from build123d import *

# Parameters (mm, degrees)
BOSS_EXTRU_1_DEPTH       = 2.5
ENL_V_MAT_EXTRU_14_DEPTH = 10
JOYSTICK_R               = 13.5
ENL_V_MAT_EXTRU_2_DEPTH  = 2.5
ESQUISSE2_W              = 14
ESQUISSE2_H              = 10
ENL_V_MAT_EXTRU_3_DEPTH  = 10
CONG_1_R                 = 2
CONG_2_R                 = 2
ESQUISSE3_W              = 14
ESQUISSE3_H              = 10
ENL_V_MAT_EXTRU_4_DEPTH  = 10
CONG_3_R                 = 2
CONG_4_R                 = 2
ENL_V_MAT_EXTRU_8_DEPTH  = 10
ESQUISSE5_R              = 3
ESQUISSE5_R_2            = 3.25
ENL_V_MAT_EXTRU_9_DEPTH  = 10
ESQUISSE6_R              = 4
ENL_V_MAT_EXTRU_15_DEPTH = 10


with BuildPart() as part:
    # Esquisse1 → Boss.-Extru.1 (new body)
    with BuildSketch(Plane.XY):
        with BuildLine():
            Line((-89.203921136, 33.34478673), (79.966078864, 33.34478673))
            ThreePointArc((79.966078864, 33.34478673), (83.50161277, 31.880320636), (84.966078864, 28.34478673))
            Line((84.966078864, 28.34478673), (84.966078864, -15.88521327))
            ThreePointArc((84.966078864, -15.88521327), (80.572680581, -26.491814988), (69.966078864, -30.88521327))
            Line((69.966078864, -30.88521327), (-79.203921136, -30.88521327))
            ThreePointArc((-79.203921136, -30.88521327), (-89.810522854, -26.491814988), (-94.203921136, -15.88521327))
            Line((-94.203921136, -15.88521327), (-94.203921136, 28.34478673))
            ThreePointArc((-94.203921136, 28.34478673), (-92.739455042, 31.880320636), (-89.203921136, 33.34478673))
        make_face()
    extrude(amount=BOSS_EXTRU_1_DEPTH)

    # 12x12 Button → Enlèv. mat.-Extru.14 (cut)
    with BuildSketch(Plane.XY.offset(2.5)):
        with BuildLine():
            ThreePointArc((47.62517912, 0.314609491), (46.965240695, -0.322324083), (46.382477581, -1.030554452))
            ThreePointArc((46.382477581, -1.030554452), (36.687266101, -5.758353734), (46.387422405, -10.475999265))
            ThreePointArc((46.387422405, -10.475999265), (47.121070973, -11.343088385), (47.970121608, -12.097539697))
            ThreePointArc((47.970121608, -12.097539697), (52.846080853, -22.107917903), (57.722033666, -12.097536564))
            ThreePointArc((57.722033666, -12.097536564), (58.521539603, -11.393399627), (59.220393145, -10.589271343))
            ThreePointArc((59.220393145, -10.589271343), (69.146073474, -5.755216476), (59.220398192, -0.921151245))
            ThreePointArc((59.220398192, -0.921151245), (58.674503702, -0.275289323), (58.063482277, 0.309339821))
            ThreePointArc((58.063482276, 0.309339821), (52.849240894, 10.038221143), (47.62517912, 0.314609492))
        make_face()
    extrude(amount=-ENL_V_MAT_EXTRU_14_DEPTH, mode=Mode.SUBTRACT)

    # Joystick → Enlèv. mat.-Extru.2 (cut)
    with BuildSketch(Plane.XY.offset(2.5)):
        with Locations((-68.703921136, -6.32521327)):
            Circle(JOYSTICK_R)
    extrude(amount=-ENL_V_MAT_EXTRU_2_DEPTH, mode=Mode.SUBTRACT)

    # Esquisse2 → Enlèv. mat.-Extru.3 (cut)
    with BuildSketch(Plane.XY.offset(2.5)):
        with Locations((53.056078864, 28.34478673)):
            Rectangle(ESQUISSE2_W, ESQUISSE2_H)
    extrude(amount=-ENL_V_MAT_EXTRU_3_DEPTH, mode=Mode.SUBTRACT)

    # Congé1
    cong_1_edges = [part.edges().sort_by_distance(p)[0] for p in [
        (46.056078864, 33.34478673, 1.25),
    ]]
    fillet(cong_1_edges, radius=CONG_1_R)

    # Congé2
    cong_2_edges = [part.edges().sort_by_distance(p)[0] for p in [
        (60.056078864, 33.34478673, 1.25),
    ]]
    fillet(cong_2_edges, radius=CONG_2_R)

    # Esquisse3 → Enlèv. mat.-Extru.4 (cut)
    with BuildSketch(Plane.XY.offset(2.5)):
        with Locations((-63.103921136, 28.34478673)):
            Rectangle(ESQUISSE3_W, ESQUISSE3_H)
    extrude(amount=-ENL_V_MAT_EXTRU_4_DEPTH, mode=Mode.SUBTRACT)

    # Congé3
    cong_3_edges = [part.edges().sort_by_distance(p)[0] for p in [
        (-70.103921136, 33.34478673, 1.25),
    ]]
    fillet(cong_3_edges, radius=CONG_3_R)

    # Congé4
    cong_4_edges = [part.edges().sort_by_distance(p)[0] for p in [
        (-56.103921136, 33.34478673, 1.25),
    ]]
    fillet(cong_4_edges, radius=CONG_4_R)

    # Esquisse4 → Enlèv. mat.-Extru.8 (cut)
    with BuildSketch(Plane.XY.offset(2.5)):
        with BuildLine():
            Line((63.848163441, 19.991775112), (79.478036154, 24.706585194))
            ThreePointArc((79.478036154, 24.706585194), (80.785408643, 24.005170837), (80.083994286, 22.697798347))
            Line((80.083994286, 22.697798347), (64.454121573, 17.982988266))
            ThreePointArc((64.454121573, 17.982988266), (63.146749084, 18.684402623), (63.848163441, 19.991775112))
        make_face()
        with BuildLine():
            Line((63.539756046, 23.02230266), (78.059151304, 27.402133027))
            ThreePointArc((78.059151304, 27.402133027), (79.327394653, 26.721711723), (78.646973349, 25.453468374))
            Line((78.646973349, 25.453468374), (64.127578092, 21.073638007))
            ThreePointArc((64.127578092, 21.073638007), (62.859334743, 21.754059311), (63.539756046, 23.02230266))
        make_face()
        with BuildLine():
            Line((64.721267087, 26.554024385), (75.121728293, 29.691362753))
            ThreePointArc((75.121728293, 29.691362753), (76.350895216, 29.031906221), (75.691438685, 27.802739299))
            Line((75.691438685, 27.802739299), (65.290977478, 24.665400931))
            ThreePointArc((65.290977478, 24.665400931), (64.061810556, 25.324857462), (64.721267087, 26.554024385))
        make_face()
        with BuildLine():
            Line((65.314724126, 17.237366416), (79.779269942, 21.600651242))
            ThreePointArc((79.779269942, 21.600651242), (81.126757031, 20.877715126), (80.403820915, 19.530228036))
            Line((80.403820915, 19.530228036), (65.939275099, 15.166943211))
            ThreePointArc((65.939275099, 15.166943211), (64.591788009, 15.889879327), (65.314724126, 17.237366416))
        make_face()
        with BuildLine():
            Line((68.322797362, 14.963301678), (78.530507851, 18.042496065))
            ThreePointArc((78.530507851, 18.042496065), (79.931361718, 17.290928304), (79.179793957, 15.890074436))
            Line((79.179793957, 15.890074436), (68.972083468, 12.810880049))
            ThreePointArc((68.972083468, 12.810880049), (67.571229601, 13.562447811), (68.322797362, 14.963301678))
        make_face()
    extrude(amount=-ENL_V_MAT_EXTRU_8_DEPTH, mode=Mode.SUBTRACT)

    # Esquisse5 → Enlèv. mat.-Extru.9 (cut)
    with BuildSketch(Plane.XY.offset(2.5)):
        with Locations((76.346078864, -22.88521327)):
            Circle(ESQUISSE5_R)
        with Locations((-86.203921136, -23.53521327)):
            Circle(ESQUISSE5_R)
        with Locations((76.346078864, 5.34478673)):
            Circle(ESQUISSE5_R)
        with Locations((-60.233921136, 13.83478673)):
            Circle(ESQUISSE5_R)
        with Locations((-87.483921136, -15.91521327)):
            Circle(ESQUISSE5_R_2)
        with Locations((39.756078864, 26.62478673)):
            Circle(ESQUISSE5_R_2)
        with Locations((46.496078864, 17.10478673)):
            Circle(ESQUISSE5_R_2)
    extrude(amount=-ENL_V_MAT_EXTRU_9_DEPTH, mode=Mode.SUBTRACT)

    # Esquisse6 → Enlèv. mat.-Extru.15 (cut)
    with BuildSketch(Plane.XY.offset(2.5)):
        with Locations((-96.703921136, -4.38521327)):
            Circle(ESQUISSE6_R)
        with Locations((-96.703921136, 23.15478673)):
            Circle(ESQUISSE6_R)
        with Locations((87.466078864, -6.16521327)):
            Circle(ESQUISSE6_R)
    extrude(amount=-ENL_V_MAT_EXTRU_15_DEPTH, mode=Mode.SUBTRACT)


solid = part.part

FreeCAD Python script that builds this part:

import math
import FreeCAD as App
import Part
import Sketcher


def edges_at(feature, points):
    """Names of the edges that pass closest to the given points."""
    edges = feature.Shape.Edges
    near = lambda p: min(range(len(edges)), key=lambda i: edges[i].distToShape(Part.Vertex(*p))[0])
    return sorted({f"Edge{near(p) + 1}" for p in points})


def add_polygon(sketch, points):
    """Adds a closed chain of lines whose ends are joined by coincident constraints."""
    first, n = sketch.GeometryCount, len(points)
    for a, b in zip(points, points[1:] + points[:1]):
        sketch.addGeometry(Part.LineSegment(App.Vector(*a, 0), App.Vector(*b, 0)), False)
    for i in range(n):
        sketch.addConstraint(Sketcher.Constraint("Coincident", first + i, 2, first + (i + 1) % n, 1))

doc = App.newDocument("Part")
body = doc.addObject("PartDesign::Body", "Body")

sketch1 = body.newObject("Sketcher::SketchObject", "Sketch")
sketch1.AttachmentSupport = (doc.getObject("XY_Plane"), [""])
sketch1.MapMode = "FlatFace"
sketch1.addGeometry([
    Part.LineSegment(App.Vector(80, 33, 0), App.Vector(-89, 33, 0)),
    Part.ArcOfCircle(Part.Circle(App.Vector(-89, 28, 0), App.Vector(0, 0, 1), 5), math.radians(90), math.radians(180)),
    Part.LineSegment(App.Vector(-94, 28, 0), App.Vector(-94, -16, 0)),
    Part.ArcOfCircle(Part.Circle(App.Vector(-79, -16, 0), App.Vector(0, 0, 1), 15), math.radians(180), math.radians(270)),
    Part.LineSegment(App.Vector(-79, -31, 0), App.Vector(70, -31, 0)),
    Part.ArcOfCircle(Part.Circle(App.Vector(70, -16, 0), App.Vector(0, 0, 1), 15), math.radians(-90), math.radians(0)),
    Part.LineSegment(App.Vector(85, -16, 0), App.Vector(85, 28, 0)),
    Part.ArcOfCircle(Part.Circle(App.Vector(80, 28, 0), App.Vector(0, 0, 1), 5), math.radians(0), math.radians(90)),
], False)
sketch1.addConstraint([
    Sketcher.Constraint("Tangent", 0, 2, 1, 1),
    Sketcher.Constraint("Tangent", 1, 2, 2, 1),
    Sketcher.Constraint("Tangent", 2, 2, 3, 1),
    Sketcher.Constraint("Tangent", 3, 2, 4, 1),
    Sketcher.Constraint("Tangent", 4, 2, 5, 1),
    Sketcher.Constraint("Tangent", 5, 2, 6, 1),
    Sketcher.Constraint("Tangent", 6, 2, 7, 1),
    Sketcher.Constraint("Tangent", 7, 2, 0, 1),
    Sketcher.Constraint("Horizontal", 0),
    Sketcher.Constraint("Vertical", 2),
    Sketcher.Constraint("Horizontal", 4),
    Sketcher.Constraint("Vertical", 6),
    Sketcher.Constraint("Equal", 3, 5),
    Sketcher.Constraint("Equal", 1, 7),
    Sketcher.Constraint("Radius", 1, 5.0),
    Sketcher.Constraint("Radius", 3, 15.0),
    Sketcher.Constraint("DistanceX", 0, 2, 0, 1, 169.17),
    Sketcher.Constraint("DistanceY", 2, 2, 2, 1, 44.23),
    Sketcher.Constraint("DistanceX", 1, 3, -1, 1, 89.203921),
    Sketcher.Constraint("DistanceY", -1, 1, 1, 3, 28.344787),
])
pad1 = body.newObject("PartDesign::Pad", "Pad")
pad1.Profile = sketch1
pad1.Length = 2.5

sketch2 = body.newObject("Sketcher::SketchObject", "Sketch001")
sketch2.AttachmentSupport = (doc.getObject("XY_Plane"), [""])
sketch2.MapMode = "FlatFace"
sketch2.AttachmentOffset = App.Placement(App.Vector(0, 0, 2.5), App.Rotation())
sketch2.addGeometry([
    Part.ArcOfCircle(Part.Circle(App.Vector(52.8, -5.8, 0), App.Vector(0, 0, 1), 8), math.radians(130.7), math.radians(143.83)),
    Part.ArcOfCircle(Part.Circle(App.Vector(42.7, -5.8, 0), App.Vector(0, 0, 1), 6), math.radians(52), math.radians(308)),
    Part.ArcOfCircle(Part.Circle(App.Vector(52.8, -5.8, 0), App.Vector(0, 0, 1), 8), math.radians(-143.84), math.radians(-127.55)),
    Part.ArcOfCircle(Part.Circle(App.Vector(52.8, -15.9, 0), App.Vector(0, 0, 1), 6.2), math.radians(142), math.radians(398)),
    Part.ArcOfCircle(Part.Circle(App.Vector(52.8, -5.8, 0), App.Vector(0, 0, 1), 8), math.radians(-52.45), math.radians(-37.18)),
    Part.ArcOfCircle(Part.Circle(App.Vector(63, -5.8, 0), App.Vector(0, 0, 1), 6.1), math.radians(-128), math.radians(128)),
    Part.ArcOfCircle(Part.Circle(App.Vector(52.8, -5.8, 0), App.Vector(0, 0, 1), 8), math.radians(37.18), math.radians(49.29)),
    Part.ArcOfCircle(Part.Circle(App.Vector(52.8, 3.8, 0), App.Vector(0, 0, 1), 6.3), math.radians(-34), math.radians(214)),
], False)
sketch2.addConstraint([
    Sketcher.Constraint("Coincident", 0, 2, 1, 1),
    Sketcher.Constraint("Coincident", 1, 2, 2, 1),
    Sketcher.Constraint("Coincident", 2, 2, 3, 1),
    Sketcher.Constraint("Coincident", 3, 2, 4, 1),
    Sketcher.Constraint("Coincident", 4, 2, 5, 1),
    Sketcher.Constraint("Coincident", 5, 2, 6, 1),
    Sketcher.Constraint("Coincident", 6, 2, 7, 1),
    Sketcher.Constraint("Coincident", 7, 2, 0, 1),
    Sketcher.Constraint("Coincident", 2, 3, 0, 3),
    Sketcher.Constraint("Coincident", 4, 3, 0, 3),
    Sketcher.Constraint("Coincident", 6, 3, 0, 3),
    Sketcher.Constraint("Horizontal", 0, 3, 1, 3),
    Sketcher.Constraint("Horizontal", 4, 3, 5, 3),
    Sketcher.Constraint("Vertical", 2, 3, 3, 3),
    Sketcher.Constraint("Vertical", 6, 3, 7, 3),
    Sketcher.Constraint("Radius", 4, 8.0),
    Sketcher.Constraint("Radius", 0, 8.006281),
    Sketcher.Constraint("DistanceX", 1, 3, 0, 3, 10.16),
    Sketcher.Constraint("DistanceY", 3, 3, 0, 3, 10.16),
    Sketcher.Constraint("DistanceX", 2, 3, 5, 3, 10.16),
    Sketcher.Constraint("DistanceY", 2, 3, 7, 3, 9.53),
    Sketcher.Constraint("DistanceY", 1, 2, -1, 1, 10.475999),
    Sketcher.Constraint("Radius", 1, 5.998814),
    Sketcher.Constraint("Radius", 2, 8.000004),
    Sketcher.Constraint("Radius", 3, 6.192705),
    Sketcher.Constraint("Radius", 5, 6.139995),
    Sketcher.Constraint("Radius", 6, 8.000006),
    Sketcher.Constraint("Radius", 7, 6.263435),
    Sketcher.Constraint("DistanceX", -1, 1, 5, 2, 59.220398),
])
pocket1 = body.newObject("PartDesign::Pocket", "Pocket")
pocket1.Profile = sketch2
pocket1.Length = 10

sketch3 = body.newObject("Sketcher::SketchObject", "Sketch002")
sketch3.AttachmentSupport = (doc.getObject("XY_Plane"), [""])
sketch3.MapMode = "FlatFace"
sketch3.AttachmentOffset = App.Placement(App.Vector(0, 0, 2.5), App.Rotation())
sketch3.addGeometry(Part.Circle(App.Vector(-69, -6, 0), App.Vector(0, 0, 1), 14), False)
sketch3.addConstraint([
    Sketcher.Constraint("Diameter", 0, 27.0),
    Sketcher.Constraint("DistanceX", 0, 3, -1, 1, 68.703921),
    Sketcher.Constraint("DistanceY", 0, 3, -1, 1, 6.325213),
])
pocket2 = body.newObject("PartDesign::Pocket", "Pocket001")
pocket2.Profile = sketch3
pocket2.Length = 2.5

sketch4 = body.newObject("Sketcher::SketchObject", "Sketch003")
sketch4.AttachmentSupport = (doc.getObject("XY_Plane"), [""])
sketch4.MapMode = "FlatFace"
sketch4.AttachmentOffset = App.Placement(App.Vector(0, 0, 2.5), App.Rotation())
add_polygon(sketch4, [(46, 33), (46, 23), (60, 23), (60, 33)])
sketch4.addConstraint([
    Sketcher.Constraint("Vertical", 0),
    Sketcher.Constraint("Horizontal", 1),
    Sketcher.Constraint("Vertical", 2),
    Sketcher.Constraint("Horizontal", 3),
    Sketcher.Constraint("DistanceX", 1, 1, 1, 2, 14.0),
    Sketcher.Constraint("DistanceY", 0, 2, 0, 1, 10.0),
    Sketcher.Constraint("DistanceX", -1, 1, 0, 2, 46.056079),
    Sketcher.Constraint("DistanceY", -1, 1, 0, 2, 23.344787),
])
pocket3 = body.newObject("PartDesign::Pocket", "Pocket002")
pocket3.Profile = sketch4
pocket3.Length = 10
doc.recompute()

fillet = body.newObject("PartDesign::Fillet", "Fillet")
fillet.Base = (pocket3, edges_at(pocket3, [(46.056, 33.345, 1.25)]))
fillet.Radius = 2
doc.recompute()

fillet2 = body.newObject("PartDesign::Fillet", "Fillet001")
fillet2.Base = (fillet, edges_at(fillet, [(60.056, 33.345, 1.25)]))
fillet2.Radius = 2

sketch5 = body.newObject("Sketcher::SketchObject", "Sketch004")
sketch5.AttachmentSupport = (doc.getObject("XY_Plane"), [""])
sketch5.MapMode = "FlatFace"
sketch5.AttachmentOffset = App.Placement(App.Vector(0, 0, 2.5), App.Rotation())
add_polygon(sketch5, [(-70, 33), (-70, 23), (-56, 23), (-56, 33)])
sketch5.addConstraint([
    Sketcher.Constraint("Vertical", 0),
    Sketcher.Constraint("Horizontal", 1),
    Sketcher.Constraint("Vertical", 2),
    Sketcher.Constraint("Horizontal", 3),
    Sketcher.Constraint("DistanceX", 1, 1, 1, 2, 14.0),
    Sketcher.Constraint("DistanceY", 0, 2, 0, 1, 10.0),
    Sketcher.Constraint("DistanceX", 0, 2, -1, 1, 70.103921),
    Sketcher.Constraint("DistanceY", -1, 1, 0, 2, 23.344787),
])
pocket4 = body.newObject("PartDesign::Pocket", "Pocket003")
pocket4.Profile = sketch5
pocket4.Length = 10
doc.recompute()

fillet3 = body.newObject("PartDesign::Fillet", "Fillet002")
fillet3.Base = (pocket4, edges_at(pocket4, [(-70.104, 33.345, 1.25)]))
fillet3.Radius = 2
doc.recompute()

fillet4 = body.newObject("PartDesign::Fillet", "Fillet003")
fillet4.Base = (fillet3, edges_at(fillet3, [(-56.104, 33.345, 1.25)]))
fillet4.Radius = 2

sketch6 = body.newObject("Sketcher::SketchObject", "Sketch005")
sketch6.AttachmentSupport = (doc.getObject("XY_Plane"), [""])
sketch6.MapMode = "FlatFace"
sketch6.AttachmentOffset = App.Placement(App.Vector(0, 0, 2.5), App.Rotation())
sketch6.addGeometry([
    Part.LineSegment(App.Vector(79.5, 24.7, 0), App.Vector(63.8, 20, 0)),
    Part.ArcOfCircle(Part.Circle(App.Vector(64.2, 19, 0), App.Vector(0, 0, 1), 1), math.radians(107), math.radians(287)),
    Part.LineSegment(App.Vector(64.5, 18, 0), App.Vector(80.1, 22.7, 0)),
    Part.ArcOfCircle(Part.Circle(App.Vector(79.8, 23.7, 0), App.Vector(0, 0, 1), 1), math.radians(-73), math.radians(107)),
    Part.LineSegment(App.Vector(78.1, 27.4, 0), App.Vector(63.5, 23, 0)),
    Part.ArcOfCircle(Part.Circle(App.Vector(63.8, 22, 0), App.Vector(0, 0, 1), 1), math.radians(107), math.radians(287)),
    Part.LineSegment(App.Vector(64.1, 21.1, 0), App.Vector(78.6, 25.5, 0)),
    Part.ArcOfCircle(Part.Circle(App.Vector(78.4, 26.4, 0), App.Vector(0, 0, 1), 1), math.radians(-73), math.radians(107)),
    Part.LineSegment(App.Vector(75.1, 29.7, 0), App.Vector(64.7, 26.6, 0)),
    Part.ArcOfCircle(Part.Circle(App.Vector(65, 25.6, 0), App.Vector(0, 0, 1), 1), math.radians(107), math.radians(287)),
    Part.LineSegment(App.Vector(65.3, 24.7, 0), App.Vector(75.7, 27.8, 0)),
    Part.ArcOfCircle(Part.Circle(App.Vector(75.4, 28.7, 0), App.Vector(0, 0, 1), 1), math.radians(-73), math.radians(107)),
    Part.LineSegment(App.Vector(79.8, 21.6, 0), App.Vector(65.3, 17.2, 0)),
    Part.ArcOfCircle(Part.Circle(App.Vector(65.6, 16.2, 0), App.Vector(0, 0, 1), 1.1), math.radians(107), math.radians(287)),
    Part.LineSegment(App.Vector(65.9, 15.2, 0), App.Vector(80.4, 19.5, 0)),
    Part.ArcOfCircle(Part.Circle(App.Vector(80.1, 20.6, 0), App.Vector(0, 0, 1), 1.1), math.radians(-73), math.radians(107)),
    Part.LineSegment(App.Vector(78.5, 18, 0), App.Vector(68.3, 15, 0)),
    Part.ArcOfCircle(Part.Circle(App.Vector(68.6, 13.9, 0), App.Vector(0, 0, 1), 1.1), math.radians(107), math.radians(287)),
    Part.LineSegment(App.Vector(69, 12.8, 0), App.Vector(79.2, 15.9, 0)),
    Part.ArcOfCircle(Part.Circle(App.Vector(78.9, 17, 0), App.Vector(0, 0, 1), 1.1), math.radians(-73), math.radians(107)),
], False)
sketch6.addConstraint([
    Sketcher.Constraint("Tangent", 0, 2, 1, 1),
    Sketcher.Constraint("Tangent", 1, 2, 2, 1),
    Sketcher.Constraint("Tangent", 2, 2, 3, 1),
    Sketcher.Constraint("Tangent", 3, 2, 0, 1),
    Sketcher.Constraint("Tangent", 4, 2, 5, 1),
    Sketcher.Constraint("Tangent", 5, 2, 6, 1),
    Sketcher.Constraint("Tangent", 6, 2, 7, 1),
    Sketcher.Constraint("Tangent", 7, 2, 4, 1),
    Sketcher.Constraint("Tangent", 8, 2, 9, 1),
    Sketcher.Constraint("Tangent", 9, 2, 10, 1),
    Sketcher.Constraint("Tangent", 10, 2, 11, 1),
    Sketcher.Constraint("Tangent", 11, 2, 8, 1),
    Sketcher.Constraint("Tangent", 12, 2, 13, 1),
    Sketcher.Constraint("Tangent", 13, 2, 14, 1),
    Sketcher.Constraint("Tangent", 14, 2, 15, 1),
    Sketcher.Constraint("Tangent", 15, 2, 12, 1),
    Sketcher.Constraint("Tangent", 16, 2, 17, 1),
    Sketcher.Constraint("Tangent", 17, 2, 18, 1),
    Sketcher.Constraint("Tangent", 18, 2, 19, 1),
    Sketcher.Constraint("Tangent", 19, 2, 16, 1),
    Sketcher.Constraint("Equal", 1, 3),
    Sketcher.Constraint("Equal", 5, 7),
    Sketcher.Constraint("Equal", 9, 11),
    Sketcher.Constraint("Equal", 13, 15),
    Sketcher.Constraint("Equal", 17, 19),
    Sketcher.Constraint("Parallel", 2, 4),
    Sketcher.Constraint("Parallel", 6, 8),
    Sketcher.Constraint("Parallel", 10, 12),
    Sketcher.Constraint("Parallel", 14, 16),
    Sketcher.Constraint("Radius", 9, 0.98634),
    Sketcher.Constraint("Radius", 17, 1.12411),
    Sketcher.Constraint("DistanceX", -1, 1, 13, 3, 65.627),
    Sketcher.Constraint("Radius", 1, 1.049096),
    Sketcher.Constraint("Radius", 5, 1.017697),
    Sketcher.Constraint("Radius", 13, 1.081286),
    Sketcher.Constraint("DistanceY", -1, 1, 7, 3, 26.427801),
    Sketcher.Constraint("DistanceY", -1, 1, 2, 2, 22.697798),
    Sketcher.Constraint("DistanceY", -1, 1, 9, 2, 24.665401),
    Sketcher.Constraint("DistanceY", -1, 1, 16, 2, 14.963302),
    Sketcher.Constraint("DistanceX", 5, 3, 8, 2, 0.8876),
    Sketcher.Constraint("DistanceY", 4, 2, 9, 2, 1.643098),
    Sketcher.Constraint("DistanceX", 5, 2, 9, 2, 1.163399),
    Sketcher.Constraint("DistanceX", 18, 2, 2, 2, 0.9042),
    Sketcher.Constraint("Distance", 12, 15.10832),
    Sketcher.Constraint("DistanceY", -1, 1, 1, 3, 18.987382),
    Sketcher.Constraint("DistanceY", -1, 1, 11, 3, 28.747051),
    Sketcher.Constraint("DistanceY", -1, 1, 15, 3, 20.56544),
    Sketcher.Constraint("DistanceX", -1, 1, 17, 3, 68.64744),
    Sketcher.Constraint("DistanceX", -1, 1, 19, 3, 78.855151),
    Sketcher.Constraint("DistanceX", -1, 1, 5, 2, 64.127578),
])
pocket5 = body.newObject("PartDesign::Pocket", "Pocket004")
pocket5.Profile = sketch6
pocket5.Length = 10

sketch7 = body.newObject("Sketcher::SketchObject", "Sketch006")
sketch7.AttachmentSupport = (doc.getObject("XY_Plane"), [""])
sketch7.MapMode = "FlatFace"
sketch7.AttachmentOffset = App.Placement(App.Vector(0, 0, 2.5), App.Rotation())
sketch7.addGeometry([
    Part.Circle(App.Vector(76.3, -22.9, 0), App.Vector(0, 0, 1), 3),
    Part.Circle(App.Vector(-86.2, -23.5, 0), App.Vector(0, 0, 1), 3),
    Part.Circle(App.Vector(76.3, 5.3, 0), App.Vector(0, 0, 1), 3),
    Part.Circle(App.Vector(-60.2, 13.8, 0), App.Vector(0, 0, 1), 3),
    Part.Circle(App.Vector(-87.5, -15.9, 0), App.Vector(0, 0, 1), 3.2),
    Part.Circle(App.Vector(39.8, 26.6, 0), App.Vector(0, 0, 1), 3.2),
    Part.Circle(App.Vector(46.5, 17.1, 0), App.Vector(0, 0, 1), 3.2),
], False)
sketch7.addConstraint([
    Sketcher.Constraint("Equal", 0, 1),
    Sketcher.Constraint("Equal", 1, 2),
    Sketcher.Constraint("Equal", 2, 3),
    Sketcher.Constraint("Equal", 4, 5),
    Sketcher.Constraint("Equal", 5, 6),
    Sketcher.Constraint("Vertical", 0, 3, 2, 3),
    Sketcher.Constraint("Diameter", 0, 6.0),
    Sketcher.Constraint("Diameter", 4, 6.5),
    Sketcher.Constraint("DistanceX", 1, 3, 0, 3, 162.55),
    Sketcher.Constraint("DistanceY", 1, 3, 0, 3, 0.65),
    Sketcher.Constraint("DistanceY", 0, 3, 2, 3, 28.23),
    Sketcher.Constraint("DistanceX", 1, 3, 3, 3, 25.97),
    Sketcher.Constraint("DistanceY", 1, 3, 3, 3, 37.37),
    Sketcher.Constraint("DistanceX", 4, 3, 1, 3, 1.28),
    Sketcher.Constraint("DistanceY", 1, 3, 4, 3, 7.62),
    Sketcher.Constraint("DistanceX", 5, 3, 2, 3, 36.59),
    Sketcher.Constraint("DistanceY", 2, 3, 5, 3, 21.28),
    Sketcher.Constraint("DistanceX", 5, 3, 6, 3, 6.74),
    Sketcher.Constraint("DistanceY", 6, 3, 5, 3, 9.52),
    Sketcher.Constraint("DistanceX", -1, 1, 0, 3, 76.346079),
    Sketcher.Constraint("DistanceY", 0, 3, -1, 1, 22.885213),
])
pocket6 = body.newObject("PartDesign::Pocket", "Pocket005")
pocket6.Profile = sketch7
pocket6.Length = 10

sketch8 = body.newObject("Sketcher::SketchObject", "Sketch007")
sketch8.AttachmentSupport = (doc.getObject("XY_Plane"), [""])
sketch8.MapMode = "FlatFace"
sketch8.AttachmentOffset = App.Placement(App.Vector(0, 0, 2.5), App.Rotation())
sketch8.addGeometry([
    Part.Circle(App.Vector(-96.7, -4.4, 0), App.Vector(0, 0, 1), 4),
    Part.Circle(App.Vector(-96.7, 23.2, 0), App.Vector(0, 0, 1), 4),
    Part.Circle(App.Vector(87.5, -6.2, 0), App.Vector(0, 0, 1), 4),
], False)
sketch8.addConstraint([
    Sketcher.Constraint("Equal", 0, 1),
    Sketcher.Constraint("Equal", 1, 2),
    Sketcher.Constraint("Vertical", 0, 3, 1, 3),
    Sketcher.Constraint("Diameter", 0, 8.0),
    Sketcher.Constraint("DistanceY", 0, 3, 1, 3, 27.54),
    Sketcher.Constraint("DistanceX", 0, 3, 2, 3, 184.17),
    Sketcher.Constraint("DistanceY", 2, 3, 0, 3, 1.78),
    Sketcher.Constraint("DistanceX", 0, 3, -1, 1, 96.703921),
    Sketcher.Constraint("DistanceY", 0, 3, -1, 1, 4.385213),
])
pocket7 = body.newObject("PartDesign::Pocket", "Pocket006")
pocket7.Profile = sketch8
pocket7.Length = 10

doc.recompute()
